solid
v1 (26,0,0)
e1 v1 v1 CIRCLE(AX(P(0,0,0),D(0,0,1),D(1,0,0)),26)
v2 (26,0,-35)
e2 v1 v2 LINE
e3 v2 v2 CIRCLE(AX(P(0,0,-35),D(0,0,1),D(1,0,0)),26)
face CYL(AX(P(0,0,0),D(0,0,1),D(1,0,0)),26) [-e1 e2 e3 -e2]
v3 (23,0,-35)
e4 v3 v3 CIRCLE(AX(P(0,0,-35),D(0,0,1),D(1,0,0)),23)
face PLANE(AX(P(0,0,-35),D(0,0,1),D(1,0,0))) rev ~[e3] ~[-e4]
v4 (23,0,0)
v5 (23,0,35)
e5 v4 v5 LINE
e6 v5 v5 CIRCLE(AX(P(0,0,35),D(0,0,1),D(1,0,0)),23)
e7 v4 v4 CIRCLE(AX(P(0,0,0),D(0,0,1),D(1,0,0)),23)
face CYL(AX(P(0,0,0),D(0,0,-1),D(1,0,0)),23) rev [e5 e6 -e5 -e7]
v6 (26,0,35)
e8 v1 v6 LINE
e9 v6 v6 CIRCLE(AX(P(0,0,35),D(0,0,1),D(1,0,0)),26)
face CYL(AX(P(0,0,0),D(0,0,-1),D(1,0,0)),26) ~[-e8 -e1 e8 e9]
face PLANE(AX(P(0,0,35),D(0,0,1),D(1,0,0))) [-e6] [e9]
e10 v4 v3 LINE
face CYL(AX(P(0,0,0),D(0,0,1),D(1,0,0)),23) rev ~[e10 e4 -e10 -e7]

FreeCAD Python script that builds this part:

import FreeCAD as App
import Part
import Sketcher

V = App.Vector
Q = App.Units.Quantity

doc = App.newDocument("Part")
body = doc.addObject("PartDesign::Body", "Body")

# Sketch on XY plane
sketch1 = body.newObject("Sketcher::SketchObject", "Sketch")
sketch1.AttachmentSupport = (doc.getObject("XY_Plane"), [""])
sketch1.MapMode = "FlatFace"
sketch1.addGeometry(Part.Circle(V(0, 0, 0), V(0, 0, 1), 26), False)
sketch1.addGeometry(Part.Circle(V(0, 0, 0), V(0, 0, 1), 23), False)
sketch1.addConstraint(Sketcher.Constraint("Coincident", 0, 3, -1, 1))
sketch1.addConstraint(Sketcher.Constraint("Coincident", 1, 3, -1, 1))
sketch1.addConstraint(Sketcher.Constraint("Diameter", 0, Q("52 mm")))
sketch1.addConstraint(Sketcher.Constraint("Diameter", 1, Q("46 mm")))
pad1 = body.newObject("PartDesign::Pad", "Pad")
pad1.Profile = sketch1
pad1.Length = 70
pad1.Midplane = True

doc.recompute()
